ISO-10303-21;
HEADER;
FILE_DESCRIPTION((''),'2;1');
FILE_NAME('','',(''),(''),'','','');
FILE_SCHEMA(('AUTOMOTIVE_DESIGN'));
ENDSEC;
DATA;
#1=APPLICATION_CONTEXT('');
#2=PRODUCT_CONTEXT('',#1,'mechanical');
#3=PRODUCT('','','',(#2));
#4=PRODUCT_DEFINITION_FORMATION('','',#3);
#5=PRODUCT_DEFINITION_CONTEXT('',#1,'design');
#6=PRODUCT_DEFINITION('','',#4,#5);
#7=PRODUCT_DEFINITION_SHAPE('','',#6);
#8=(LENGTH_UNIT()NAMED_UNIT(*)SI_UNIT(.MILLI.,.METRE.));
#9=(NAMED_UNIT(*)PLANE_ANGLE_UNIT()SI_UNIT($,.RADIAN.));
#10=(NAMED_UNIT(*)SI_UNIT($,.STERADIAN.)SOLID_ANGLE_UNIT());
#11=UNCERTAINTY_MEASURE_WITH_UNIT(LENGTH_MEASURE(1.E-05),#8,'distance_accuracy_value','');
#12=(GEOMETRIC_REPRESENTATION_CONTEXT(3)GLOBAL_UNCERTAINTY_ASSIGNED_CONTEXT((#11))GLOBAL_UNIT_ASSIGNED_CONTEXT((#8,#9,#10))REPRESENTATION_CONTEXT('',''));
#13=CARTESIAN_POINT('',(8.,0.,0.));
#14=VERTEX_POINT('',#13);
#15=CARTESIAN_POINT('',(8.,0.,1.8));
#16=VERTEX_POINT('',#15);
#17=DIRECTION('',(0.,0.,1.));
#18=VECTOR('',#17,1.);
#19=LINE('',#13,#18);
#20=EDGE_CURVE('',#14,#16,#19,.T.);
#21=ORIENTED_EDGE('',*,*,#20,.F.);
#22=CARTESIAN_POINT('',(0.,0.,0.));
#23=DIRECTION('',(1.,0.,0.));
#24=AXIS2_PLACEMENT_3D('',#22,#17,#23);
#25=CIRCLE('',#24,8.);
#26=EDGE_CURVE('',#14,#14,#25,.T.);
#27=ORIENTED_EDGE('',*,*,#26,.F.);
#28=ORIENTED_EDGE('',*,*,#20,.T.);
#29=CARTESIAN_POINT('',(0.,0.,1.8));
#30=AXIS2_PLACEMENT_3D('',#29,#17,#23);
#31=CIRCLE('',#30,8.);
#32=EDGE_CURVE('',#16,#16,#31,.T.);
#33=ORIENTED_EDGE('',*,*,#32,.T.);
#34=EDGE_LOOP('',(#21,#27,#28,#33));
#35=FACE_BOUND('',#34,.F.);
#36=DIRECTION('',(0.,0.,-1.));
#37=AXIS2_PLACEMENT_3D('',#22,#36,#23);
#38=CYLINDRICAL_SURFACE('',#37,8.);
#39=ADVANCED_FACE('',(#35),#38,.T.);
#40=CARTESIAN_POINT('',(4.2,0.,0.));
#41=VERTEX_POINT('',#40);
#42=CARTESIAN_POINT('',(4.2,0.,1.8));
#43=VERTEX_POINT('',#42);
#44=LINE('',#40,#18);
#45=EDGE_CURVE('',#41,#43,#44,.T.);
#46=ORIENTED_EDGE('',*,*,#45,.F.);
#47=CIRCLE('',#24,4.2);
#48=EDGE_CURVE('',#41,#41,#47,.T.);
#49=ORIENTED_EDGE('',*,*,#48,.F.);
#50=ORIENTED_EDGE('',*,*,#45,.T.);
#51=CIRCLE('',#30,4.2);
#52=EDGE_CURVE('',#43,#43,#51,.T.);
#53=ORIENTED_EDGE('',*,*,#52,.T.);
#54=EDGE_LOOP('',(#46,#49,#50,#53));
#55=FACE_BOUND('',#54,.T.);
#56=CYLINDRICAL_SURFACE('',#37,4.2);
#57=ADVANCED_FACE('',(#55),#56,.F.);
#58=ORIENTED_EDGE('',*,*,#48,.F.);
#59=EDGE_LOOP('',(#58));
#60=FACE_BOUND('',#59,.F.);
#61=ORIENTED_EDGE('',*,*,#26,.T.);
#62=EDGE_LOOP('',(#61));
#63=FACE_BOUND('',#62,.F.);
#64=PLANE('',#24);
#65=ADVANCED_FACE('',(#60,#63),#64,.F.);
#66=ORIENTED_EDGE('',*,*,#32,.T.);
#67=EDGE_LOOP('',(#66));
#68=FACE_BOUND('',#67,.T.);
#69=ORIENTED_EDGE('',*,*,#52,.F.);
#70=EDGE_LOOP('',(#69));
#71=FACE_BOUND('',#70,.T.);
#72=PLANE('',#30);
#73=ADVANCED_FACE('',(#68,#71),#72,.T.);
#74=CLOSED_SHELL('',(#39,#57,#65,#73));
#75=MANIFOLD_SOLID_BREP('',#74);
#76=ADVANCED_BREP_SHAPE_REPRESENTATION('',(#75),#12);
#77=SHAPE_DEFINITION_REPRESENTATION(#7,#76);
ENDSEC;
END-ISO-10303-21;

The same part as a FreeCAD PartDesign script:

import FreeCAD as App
import Part
import Sketcher
from FreeCAD import Vector
Q = App.Units.Quantity

doc = App.newDocument("Part")
body = doc.addObject("PartDesign::Body", "Body")

# Sketch on XY plane
sketch1 = body.newObject("Sketcher::SketchObject", "Sketch")
sketch1.AttachmentSupport = (doc.getObject("XY_Plane"), [""])
sketch1.MapMode = "FlatFace"
sketch1.addGeometry([
    Part.Circle(Vector(0, 0, 0), Vector(0, 0, 1), 8),
    Part.Circle(Vector(0, 0, 0), Vector(0, 0, 1), 4.2),
], False)
sketch1.addConstraint([
    Sketcher.Constraint("Coincident", 0, 3, -1, 1),
    Sketcher.Constraint("Coincident", 1, 3, -1, 1),
    Sketcher.Constraint("Diameter", 0, Q("16 mm")),
    Sketcher.Constraint("Diameter", 1, Q("8.4 mm")),
])
pad1 = body.newObject("PartDesign::Pad", "Pad")
pad1.Profile = sketch1
pad1.Length = 1.8

doc.recompute()
